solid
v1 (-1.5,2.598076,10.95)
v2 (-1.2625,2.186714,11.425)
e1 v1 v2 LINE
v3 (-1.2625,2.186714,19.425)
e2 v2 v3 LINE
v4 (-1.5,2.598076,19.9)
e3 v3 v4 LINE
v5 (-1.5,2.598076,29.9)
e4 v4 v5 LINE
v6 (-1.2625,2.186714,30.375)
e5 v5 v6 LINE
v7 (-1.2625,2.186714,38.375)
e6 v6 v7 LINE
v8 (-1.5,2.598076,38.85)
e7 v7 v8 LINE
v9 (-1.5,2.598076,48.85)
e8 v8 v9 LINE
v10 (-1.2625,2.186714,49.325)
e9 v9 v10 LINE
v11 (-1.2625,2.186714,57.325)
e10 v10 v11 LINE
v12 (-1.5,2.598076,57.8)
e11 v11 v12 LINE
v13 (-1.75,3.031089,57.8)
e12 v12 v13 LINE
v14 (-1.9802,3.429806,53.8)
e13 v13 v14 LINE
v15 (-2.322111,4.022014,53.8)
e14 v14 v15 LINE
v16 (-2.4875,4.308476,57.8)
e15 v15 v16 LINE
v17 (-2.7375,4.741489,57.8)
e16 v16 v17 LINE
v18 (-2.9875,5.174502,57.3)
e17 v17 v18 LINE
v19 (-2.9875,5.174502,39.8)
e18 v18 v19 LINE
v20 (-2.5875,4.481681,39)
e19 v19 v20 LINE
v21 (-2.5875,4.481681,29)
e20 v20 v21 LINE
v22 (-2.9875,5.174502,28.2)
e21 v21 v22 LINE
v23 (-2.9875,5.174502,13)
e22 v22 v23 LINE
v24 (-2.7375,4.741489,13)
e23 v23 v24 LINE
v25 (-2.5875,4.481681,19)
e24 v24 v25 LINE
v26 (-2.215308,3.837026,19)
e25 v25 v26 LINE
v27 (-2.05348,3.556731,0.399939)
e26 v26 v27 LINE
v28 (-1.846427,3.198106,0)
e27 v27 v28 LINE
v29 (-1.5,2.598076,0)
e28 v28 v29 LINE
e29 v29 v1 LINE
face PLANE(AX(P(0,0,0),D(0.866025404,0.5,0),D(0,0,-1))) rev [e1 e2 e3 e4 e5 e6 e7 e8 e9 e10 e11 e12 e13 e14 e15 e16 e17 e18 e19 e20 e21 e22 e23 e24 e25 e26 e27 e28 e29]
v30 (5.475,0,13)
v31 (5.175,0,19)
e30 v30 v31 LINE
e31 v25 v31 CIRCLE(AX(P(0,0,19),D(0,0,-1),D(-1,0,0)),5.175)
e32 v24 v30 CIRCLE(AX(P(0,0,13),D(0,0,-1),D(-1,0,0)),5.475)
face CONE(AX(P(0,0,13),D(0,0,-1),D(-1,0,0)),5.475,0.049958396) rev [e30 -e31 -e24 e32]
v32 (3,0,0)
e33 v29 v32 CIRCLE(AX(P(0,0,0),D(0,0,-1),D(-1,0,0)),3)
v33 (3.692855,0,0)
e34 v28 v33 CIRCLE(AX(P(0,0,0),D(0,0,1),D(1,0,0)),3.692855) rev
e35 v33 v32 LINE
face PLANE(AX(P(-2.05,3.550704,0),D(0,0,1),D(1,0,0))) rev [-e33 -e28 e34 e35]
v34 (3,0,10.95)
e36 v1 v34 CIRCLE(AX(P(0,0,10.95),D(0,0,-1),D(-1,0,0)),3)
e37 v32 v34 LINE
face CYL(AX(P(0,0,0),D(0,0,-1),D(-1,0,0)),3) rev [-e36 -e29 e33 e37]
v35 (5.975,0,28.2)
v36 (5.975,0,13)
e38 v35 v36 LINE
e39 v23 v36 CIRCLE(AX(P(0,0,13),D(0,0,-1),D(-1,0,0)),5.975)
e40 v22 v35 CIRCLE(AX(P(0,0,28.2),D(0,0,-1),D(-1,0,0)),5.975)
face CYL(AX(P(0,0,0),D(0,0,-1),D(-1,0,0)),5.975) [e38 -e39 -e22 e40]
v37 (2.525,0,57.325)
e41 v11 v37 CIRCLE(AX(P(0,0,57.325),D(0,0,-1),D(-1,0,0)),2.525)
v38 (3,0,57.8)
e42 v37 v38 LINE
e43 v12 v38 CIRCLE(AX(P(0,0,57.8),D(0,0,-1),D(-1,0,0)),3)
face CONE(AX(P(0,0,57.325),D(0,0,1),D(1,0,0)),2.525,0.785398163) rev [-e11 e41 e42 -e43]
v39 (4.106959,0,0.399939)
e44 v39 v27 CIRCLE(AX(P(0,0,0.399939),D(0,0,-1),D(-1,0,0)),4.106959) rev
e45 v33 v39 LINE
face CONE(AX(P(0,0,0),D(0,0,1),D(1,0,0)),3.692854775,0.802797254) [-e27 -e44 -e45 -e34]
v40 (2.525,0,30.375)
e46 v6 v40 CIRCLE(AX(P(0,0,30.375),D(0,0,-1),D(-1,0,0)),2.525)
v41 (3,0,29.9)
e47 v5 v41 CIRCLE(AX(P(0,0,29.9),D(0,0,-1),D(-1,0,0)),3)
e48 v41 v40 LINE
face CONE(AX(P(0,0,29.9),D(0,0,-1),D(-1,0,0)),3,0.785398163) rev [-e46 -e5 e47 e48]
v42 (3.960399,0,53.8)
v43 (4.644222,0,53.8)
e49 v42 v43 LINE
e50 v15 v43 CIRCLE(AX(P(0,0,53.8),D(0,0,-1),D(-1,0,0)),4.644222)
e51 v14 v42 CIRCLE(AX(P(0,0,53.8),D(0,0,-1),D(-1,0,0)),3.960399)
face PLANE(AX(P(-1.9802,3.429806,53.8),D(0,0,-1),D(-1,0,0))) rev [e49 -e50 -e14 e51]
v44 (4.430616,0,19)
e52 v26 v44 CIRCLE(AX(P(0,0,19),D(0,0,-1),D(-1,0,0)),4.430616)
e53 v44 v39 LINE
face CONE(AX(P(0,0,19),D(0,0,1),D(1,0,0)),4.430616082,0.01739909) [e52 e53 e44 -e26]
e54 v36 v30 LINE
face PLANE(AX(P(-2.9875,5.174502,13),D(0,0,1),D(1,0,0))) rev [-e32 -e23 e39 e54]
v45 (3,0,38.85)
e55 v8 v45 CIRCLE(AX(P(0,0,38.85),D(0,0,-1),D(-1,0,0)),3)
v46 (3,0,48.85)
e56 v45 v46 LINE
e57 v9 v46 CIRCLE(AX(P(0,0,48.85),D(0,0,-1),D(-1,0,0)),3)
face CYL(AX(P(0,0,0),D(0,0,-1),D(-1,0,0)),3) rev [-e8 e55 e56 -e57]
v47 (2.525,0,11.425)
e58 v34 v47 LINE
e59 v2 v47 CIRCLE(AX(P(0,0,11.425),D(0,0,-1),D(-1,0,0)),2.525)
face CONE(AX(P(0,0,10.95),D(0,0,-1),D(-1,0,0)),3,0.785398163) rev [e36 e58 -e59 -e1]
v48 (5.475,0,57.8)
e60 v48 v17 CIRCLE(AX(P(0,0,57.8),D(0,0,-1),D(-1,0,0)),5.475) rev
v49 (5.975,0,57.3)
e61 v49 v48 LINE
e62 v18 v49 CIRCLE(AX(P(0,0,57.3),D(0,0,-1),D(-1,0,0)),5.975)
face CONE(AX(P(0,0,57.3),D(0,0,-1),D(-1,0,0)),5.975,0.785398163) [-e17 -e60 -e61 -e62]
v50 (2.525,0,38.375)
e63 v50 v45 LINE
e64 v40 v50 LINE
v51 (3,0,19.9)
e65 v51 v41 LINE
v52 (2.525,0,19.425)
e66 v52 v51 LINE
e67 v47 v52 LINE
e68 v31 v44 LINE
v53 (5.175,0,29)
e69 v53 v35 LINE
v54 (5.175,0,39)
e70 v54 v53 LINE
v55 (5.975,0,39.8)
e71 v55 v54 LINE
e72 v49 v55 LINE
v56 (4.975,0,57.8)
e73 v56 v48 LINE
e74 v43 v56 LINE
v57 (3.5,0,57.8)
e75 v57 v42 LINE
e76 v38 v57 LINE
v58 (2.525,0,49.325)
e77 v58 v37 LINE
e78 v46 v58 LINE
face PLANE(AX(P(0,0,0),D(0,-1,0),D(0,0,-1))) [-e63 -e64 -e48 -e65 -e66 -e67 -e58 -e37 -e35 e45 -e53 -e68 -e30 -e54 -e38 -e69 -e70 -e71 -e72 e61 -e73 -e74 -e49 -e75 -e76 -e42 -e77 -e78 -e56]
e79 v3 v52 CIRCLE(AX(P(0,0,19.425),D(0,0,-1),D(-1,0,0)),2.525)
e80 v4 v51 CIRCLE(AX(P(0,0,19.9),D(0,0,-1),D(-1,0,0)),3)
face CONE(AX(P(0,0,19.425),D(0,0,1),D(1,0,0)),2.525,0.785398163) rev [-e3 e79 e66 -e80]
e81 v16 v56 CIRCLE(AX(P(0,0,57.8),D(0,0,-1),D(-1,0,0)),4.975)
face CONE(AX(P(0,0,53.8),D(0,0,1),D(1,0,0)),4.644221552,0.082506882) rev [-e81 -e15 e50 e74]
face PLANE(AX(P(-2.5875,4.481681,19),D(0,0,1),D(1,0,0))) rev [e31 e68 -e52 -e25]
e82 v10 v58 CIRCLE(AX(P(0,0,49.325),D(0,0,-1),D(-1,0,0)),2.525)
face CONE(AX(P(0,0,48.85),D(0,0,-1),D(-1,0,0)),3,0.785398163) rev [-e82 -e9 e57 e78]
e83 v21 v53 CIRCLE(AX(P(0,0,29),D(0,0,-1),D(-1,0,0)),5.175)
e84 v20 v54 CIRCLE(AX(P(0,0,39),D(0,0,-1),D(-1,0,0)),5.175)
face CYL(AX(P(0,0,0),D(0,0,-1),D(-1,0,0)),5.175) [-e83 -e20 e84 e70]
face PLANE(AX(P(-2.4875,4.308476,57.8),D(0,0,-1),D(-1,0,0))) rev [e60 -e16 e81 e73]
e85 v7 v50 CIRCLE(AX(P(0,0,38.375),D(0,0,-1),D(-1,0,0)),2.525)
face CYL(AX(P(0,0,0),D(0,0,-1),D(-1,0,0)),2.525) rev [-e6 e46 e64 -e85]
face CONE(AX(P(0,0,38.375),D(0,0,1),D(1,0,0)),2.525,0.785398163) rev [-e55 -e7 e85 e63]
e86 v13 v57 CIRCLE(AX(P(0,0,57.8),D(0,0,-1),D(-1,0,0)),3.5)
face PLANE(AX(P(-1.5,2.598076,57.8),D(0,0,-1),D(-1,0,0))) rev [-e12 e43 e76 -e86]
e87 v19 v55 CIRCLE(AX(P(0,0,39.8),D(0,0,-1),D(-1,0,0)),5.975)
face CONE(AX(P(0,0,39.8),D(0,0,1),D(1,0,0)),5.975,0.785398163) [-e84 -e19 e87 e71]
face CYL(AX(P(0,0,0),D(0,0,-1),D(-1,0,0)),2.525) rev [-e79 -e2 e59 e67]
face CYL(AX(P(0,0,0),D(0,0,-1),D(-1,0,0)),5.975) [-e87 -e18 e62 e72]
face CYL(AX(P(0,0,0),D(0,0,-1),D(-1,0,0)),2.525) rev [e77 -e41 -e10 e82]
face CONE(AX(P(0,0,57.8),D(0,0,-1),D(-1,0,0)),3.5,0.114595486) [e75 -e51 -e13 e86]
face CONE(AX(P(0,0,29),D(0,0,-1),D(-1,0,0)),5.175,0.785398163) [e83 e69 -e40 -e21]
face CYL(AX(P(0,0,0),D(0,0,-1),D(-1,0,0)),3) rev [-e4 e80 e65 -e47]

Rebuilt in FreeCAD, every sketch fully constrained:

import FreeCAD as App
import Part
import Sketcher
from FreeCAD import Vector


def edges_at(feature, points):
    """Names of the edges that pass closest to the given points."""
    edges = feature.Shape.Edges
    near = lambda p: min(range(len(edges)), key=lambda i: edges[i].distToShape(Part.Vertex(*p))[0])
    return sorted({f"Edge{near(p) + 1}" for p in points})


def add_polygon(sketch, points):
    """Adds a closed chain of lines whose ends are joined by coincident constraints."""
    first, n = sketch.GeometryCount, len(points)
    for a, b in zip(points, points[1:] + points[:1]):
        sketch.addGeometry(Part.LineSegment(App.Vector(*a, 0), App.Vector(*b, 0)), False)
    for i in range(n):
        sketch.addConstraint(Sketcher.Constraint("Coincident", first + i, 2, first + (i + 1) % n, 1))

doc = App.newDocument("Part")
body = doc.addObject("PartDesign::Body", "Body")

# Sketch on XZ plane
sketch1 = doc.addObject("Sketcher::SketchObject", "Sketch")
body.addObject(sketch1)
sketch1.AttachmentSupport = (doc.XZ_Plane, [""])
sketch1.MapMode = "FlatFace"
add_polygon(sketch1, [(2.5, 30.4), (2.5, 38.4), (3, 38.9), (3, 48.9), (2.5, 49.3), (2.5, 57.3), (3, 57.8), (3.5, 57.8), (4, 53.8), (4.6, 53.8), (5, 57.8), (6, 57.8), (6, 39.8), (5.2, 39), (5.2, 29), (6, 28.2), (6, 13), (5.5, 13), (5.2, 19), (4.4, 19), (4.1, 0), (3, 0), (3, 10.9), (2.5, 11.4), (2.5, 19.4), (3, 19.9), (3, 29.9)])  # lines 0-26
sketch1.addConstraint([
    Sketcher.Constraint("Vertical", 0),
    Sketcher.Constraint("Vertical", 2),
    Sketcher.Constraint("Vertical", 4),
    Sketcher.Constraint("Horizontal", 6),
    Sketcher.Constraint("Horizontal", 8),
    Sketcher.Constraint("Horizontal", 10),
    Sketcher.Constraint("Vertical", 11),
    Sketcher.Constraint("Vertical", 13),
    Sketcher.Constraint("Vertical", 15),
    Sketcher.Constraint("Horizontal", 16),
    Sketcher.Constraint("Horizontal", 18),
    Sketcher.Constraint("Horizontal", 20),
    Sketcher.Constraint("Vertical", 21),
    Sketcher.Constraint("Vertical", 23),
    Sketcher.Constraint("Vertical", 25),
    Sketcher.Constraint("PointOnObject", 19, 2, -1),
    Sketcher.Constraint("Perpendicular", 1, 3),
    Sketcher.Constraint("Perpendicular", 3, 5),
    Sketcher.Constraint("Parallel", 5, 12),
    Sketcher.Constraint("Perpendicular", 12, 14),
    Sketcher.Constraint("Parallel", 14, 22),
    Sketcher.Constraint("Perpendicular", 22, 24),
    Sketcher.Constraint("Perpendicular", 24, 26),
    Sketcher.Constraint("Horizontal", 6, 2, 9, 2),
    Sketcher.Constraint("Vertical", 0, 2, 3, 2),
    Sketcher.Constraint("Vertical", 2, 2, 5, 2),
    Sketcher.Constraint("Vertical", 11, 2, 14, 2),
    Sketcher.Constraint("Vertical", 13, 2, 17, 2),
    Sketcher.Constraint("Vertical", 5, 2, 20, 2),
    Sketcher.Constraint("Vertical", 4, 2, 22, 2),
    Sketcher.Constraint("Vertical", 21, 2, 24, 2),
    Sketcher.Constraint("Equal", 6, 16),
    Sketcher.Constraint("Equal", 0, 4),
    Sketcher.Constraint("Equal", 2, 13),
    Sketcher.Constraint("Equal", 4, 23),
    Sketcher.Constraint("Equal", 13, 25),
    Sketcher.Constraint("Equal", 1, 3),
    Sketcher.Constraint("DistanceX", 10, 1, 10, 2, 1.0),
    Sketcher.Constraint("DistanceY", 0, 1, 0, 2, 8.0),
    Sketcher.Constraint("DistanceY", 2, 1, 2, 2, 10.0),
    Sketcher.Constraint("DistanceY", 11, 2, 11, 1, 18.0),
    Sketcher.Constraint("DistanceX", 6, 1, 6, 2, 0.5),
    Sketcher.Constraint("DistanceX", 20, 2, 20, 1, 1.1),
    Sketcher.Constraint("DistanceY", 15, 2, 15, 1, 15.2),
    Sketcher.Constraint("DistanceX", -1, 1, 1, 2, 3.0),
    Sketcher.Constraint("DistanceY", -1, 1, 12, 2, 39.0),
    Sketcher.Constraint("DistanceY", -1, 1, 15, 2, 13.0),
    Sketcher.Constraint("DistanceY", -1, 1, 17, 2, 19.0),
    Sketcher.Constraint("DistanceY", 7, 2, 6, 2, 4.0),
    Sketcher.Constraint("DistanceY", 21, 1, 21, 2, 10.95),
    Sketcher.Constraint("DistanceX", 4, 2, 9, 2, 2.45),
    Sketcher.Constraint("DistanceX", -1, 1, 7, 2, 3.960399),
    Sketcher.Constraint("DistanceX", 8, 1, 8, 2, 0.683823),
    Sketcher.Constraint("DistanceX", 18, 2, 18, 1, 0.744384),
])
revolution = doc.addObject("PartDesign::Revolution", "Revolution")
body.addObject(revolution)
revolution.Profile = sketch1
revolution.ReferenceAxis = (sketch1, ["V_Axis"])
revolution.Angle = 120
doc.recompute()

chamfer = doc.addObject("PartDesign::Chamfer", "Chamfer")
body.addObject(chamfer)
chamfer.Base = (revolution, edges_at(revolution, [(2.05, 3.551, 0)]))
chamfer.ChamferType = "Two distances"
chamfer.Size = 0.4
chamfer.Size2 = 0.407145
doc.recompute()

chamfer2 = doc.addObject("PartDesign::Chamfer", "Chamfer001")
body.addObject(chamfer2)
chamfer2.Base = (chamfer, edges_at(chamfer, [(2.987, 5.175, 57.8)]))
chamfer2.Size = 0.5

doc.recompute()
